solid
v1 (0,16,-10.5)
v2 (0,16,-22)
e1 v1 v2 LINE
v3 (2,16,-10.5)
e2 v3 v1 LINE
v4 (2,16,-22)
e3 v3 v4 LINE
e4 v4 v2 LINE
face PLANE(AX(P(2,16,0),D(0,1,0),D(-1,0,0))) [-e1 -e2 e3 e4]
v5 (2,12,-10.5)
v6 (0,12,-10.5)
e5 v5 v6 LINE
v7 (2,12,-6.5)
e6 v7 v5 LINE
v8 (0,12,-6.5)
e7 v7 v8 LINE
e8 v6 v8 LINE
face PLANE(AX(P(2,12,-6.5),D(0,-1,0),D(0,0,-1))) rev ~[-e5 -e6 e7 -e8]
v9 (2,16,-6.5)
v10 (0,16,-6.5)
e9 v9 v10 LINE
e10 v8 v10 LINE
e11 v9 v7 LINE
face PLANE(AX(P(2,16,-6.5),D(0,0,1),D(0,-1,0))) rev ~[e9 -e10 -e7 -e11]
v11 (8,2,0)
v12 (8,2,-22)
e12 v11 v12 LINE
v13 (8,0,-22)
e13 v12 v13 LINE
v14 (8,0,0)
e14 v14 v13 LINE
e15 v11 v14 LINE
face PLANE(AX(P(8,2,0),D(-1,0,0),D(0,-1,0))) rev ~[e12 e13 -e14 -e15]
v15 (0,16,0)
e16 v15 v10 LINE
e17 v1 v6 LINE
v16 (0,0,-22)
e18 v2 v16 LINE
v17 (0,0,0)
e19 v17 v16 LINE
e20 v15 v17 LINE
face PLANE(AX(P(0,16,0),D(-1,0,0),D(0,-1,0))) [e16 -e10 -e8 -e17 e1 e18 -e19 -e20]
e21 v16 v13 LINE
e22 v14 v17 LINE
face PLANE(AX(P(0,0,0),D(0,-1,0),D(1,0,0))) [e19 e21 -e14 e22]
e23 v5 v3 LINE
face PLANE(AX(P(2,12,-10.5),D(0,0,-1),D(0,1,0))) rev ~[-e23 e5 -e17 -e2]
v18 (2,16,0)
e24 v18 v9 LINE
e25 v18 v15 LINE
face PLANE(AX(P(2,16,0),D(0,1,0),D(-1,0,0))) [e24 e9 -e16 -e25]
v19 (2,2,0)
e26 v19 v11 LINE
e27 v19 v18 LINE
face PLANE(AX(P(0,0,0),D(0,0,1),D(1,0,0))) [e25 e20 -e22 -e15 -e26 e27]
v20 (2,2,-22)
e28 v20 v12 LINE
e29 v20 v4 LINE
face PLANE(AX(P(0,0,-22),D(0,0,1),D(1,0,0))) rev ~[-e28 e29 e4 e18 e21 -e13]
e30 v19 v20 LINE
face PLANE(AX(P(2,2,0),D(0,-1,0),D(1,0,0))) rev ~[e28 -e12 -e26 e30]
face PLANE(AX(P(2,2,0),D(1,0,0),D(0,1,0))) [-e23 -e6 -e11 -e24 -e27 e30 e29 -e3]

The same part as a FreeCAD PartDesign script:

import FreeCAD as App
import Part
import Sketcher
from FreeCAD import Vector


def add_polygon(sketch, points):
    """Adds a closed chain of lines whose ends are joined by coincident constraints."""
    first, n = sketch.GeometryCount, len(points)
    for a, b in zip(points, points[1:] + points[:1]):
        sketch.addGeometry(Part.LineSegment(App.Vector(*a, 0), App.Vector(*b, 0)), False)
    for i in range(n):
        sketch.addConstraint(Sketcher.Constraint("Coincident", first + i, 2, first + (i + 1) % n, 1))

doc = App.newDocument("Part")
body = doc.addObject("PartDesign::Body", "Body")

# Sketch on XY plane
sketch1 = body.newObject("Sketcher::SketchObject", "Sketch")
sketch1.AttachmentSupport = (doc.getObject("XY_Plane"), [""])
sketch1.MapMode = "FlatFace"
add_polygon(sketch1, [(0, 16), (0, 0), (8, 0), (8, 2), (2, 2), (2, 16)])  # lines 0-5
sketch1.addConstraint([
    Sketcher.Constraint("Vertical", 0),
    Sketcher.Constraint("Horizontal", 1),
    Sketcher.Constraint("Vertical", 2),
    Sketcher.Constraint("Horizontal", 3),
    Sketcher.Constraint("Vertical", 4),
    Sketcher.Constraint("Horizontal", 5),
    Sketcher.Constraint("Coincident", 0, 2, -1, 1),
    Sketcher.Constraint("Equal", 5, 2),
    Sketcher.Constraint("DistanceX", 3, 2, 3, 1, 6.0),
    Sketcher.Constraint("DistanceX", 5, 2, 5, 1, 2.0),
    Sketcher.Constraint("DistanceY", 0, 2, 0, 1, 16.0),
])
pad1 = body.newObject("PartDesign::Pad", "Pad")
pad1.Profile = sketch1
pad1.Length = 22
pad1.Reversed = True

# Sketch on YZ plane
sketch2 = body.newObject("Sketcher::SketchObject", "Sketch001")
sketch2.AttachmentSupport = (doc.getObject("YZ_Plane"), [""])
sketch2.MapMode = "FlatFace"
sketch2.AttachmentOffset = App.Placement(Vector(0, 0, 2), App.Rotation())
add_polygon(sketch2, [(12, -10.5), (16, -10.5), (16, -6.5), (12, -6.5)])  # lines 0-3
sketch2.addConstraint([
    Sketcher.Constraint("Horizontal", 0),
    Sketcher.Constraint("Vertical", 1),
    Sketcher.Constraint("Horizontal", 2),
    Sketcher.Constraint("Vertical", 3),
    Sketcher.Constraint("Equal", 2, 1),
    Sketcher.Constraint("DistanceX", 0, 1, 0, 2, 4.0),
    Sketcher.Constraint("DistanceX", -1, 1, 0, 2, 16.0),
    Sketcher.Constraint("DistanceY", 0, 2, -1, 1, 10.5),
])
pocket1 = body.newObject("PartDesign::Pocket", "Pocket")
pocket1.Profile = sketch2
pocket1.Length = 10

doc.recompute()
